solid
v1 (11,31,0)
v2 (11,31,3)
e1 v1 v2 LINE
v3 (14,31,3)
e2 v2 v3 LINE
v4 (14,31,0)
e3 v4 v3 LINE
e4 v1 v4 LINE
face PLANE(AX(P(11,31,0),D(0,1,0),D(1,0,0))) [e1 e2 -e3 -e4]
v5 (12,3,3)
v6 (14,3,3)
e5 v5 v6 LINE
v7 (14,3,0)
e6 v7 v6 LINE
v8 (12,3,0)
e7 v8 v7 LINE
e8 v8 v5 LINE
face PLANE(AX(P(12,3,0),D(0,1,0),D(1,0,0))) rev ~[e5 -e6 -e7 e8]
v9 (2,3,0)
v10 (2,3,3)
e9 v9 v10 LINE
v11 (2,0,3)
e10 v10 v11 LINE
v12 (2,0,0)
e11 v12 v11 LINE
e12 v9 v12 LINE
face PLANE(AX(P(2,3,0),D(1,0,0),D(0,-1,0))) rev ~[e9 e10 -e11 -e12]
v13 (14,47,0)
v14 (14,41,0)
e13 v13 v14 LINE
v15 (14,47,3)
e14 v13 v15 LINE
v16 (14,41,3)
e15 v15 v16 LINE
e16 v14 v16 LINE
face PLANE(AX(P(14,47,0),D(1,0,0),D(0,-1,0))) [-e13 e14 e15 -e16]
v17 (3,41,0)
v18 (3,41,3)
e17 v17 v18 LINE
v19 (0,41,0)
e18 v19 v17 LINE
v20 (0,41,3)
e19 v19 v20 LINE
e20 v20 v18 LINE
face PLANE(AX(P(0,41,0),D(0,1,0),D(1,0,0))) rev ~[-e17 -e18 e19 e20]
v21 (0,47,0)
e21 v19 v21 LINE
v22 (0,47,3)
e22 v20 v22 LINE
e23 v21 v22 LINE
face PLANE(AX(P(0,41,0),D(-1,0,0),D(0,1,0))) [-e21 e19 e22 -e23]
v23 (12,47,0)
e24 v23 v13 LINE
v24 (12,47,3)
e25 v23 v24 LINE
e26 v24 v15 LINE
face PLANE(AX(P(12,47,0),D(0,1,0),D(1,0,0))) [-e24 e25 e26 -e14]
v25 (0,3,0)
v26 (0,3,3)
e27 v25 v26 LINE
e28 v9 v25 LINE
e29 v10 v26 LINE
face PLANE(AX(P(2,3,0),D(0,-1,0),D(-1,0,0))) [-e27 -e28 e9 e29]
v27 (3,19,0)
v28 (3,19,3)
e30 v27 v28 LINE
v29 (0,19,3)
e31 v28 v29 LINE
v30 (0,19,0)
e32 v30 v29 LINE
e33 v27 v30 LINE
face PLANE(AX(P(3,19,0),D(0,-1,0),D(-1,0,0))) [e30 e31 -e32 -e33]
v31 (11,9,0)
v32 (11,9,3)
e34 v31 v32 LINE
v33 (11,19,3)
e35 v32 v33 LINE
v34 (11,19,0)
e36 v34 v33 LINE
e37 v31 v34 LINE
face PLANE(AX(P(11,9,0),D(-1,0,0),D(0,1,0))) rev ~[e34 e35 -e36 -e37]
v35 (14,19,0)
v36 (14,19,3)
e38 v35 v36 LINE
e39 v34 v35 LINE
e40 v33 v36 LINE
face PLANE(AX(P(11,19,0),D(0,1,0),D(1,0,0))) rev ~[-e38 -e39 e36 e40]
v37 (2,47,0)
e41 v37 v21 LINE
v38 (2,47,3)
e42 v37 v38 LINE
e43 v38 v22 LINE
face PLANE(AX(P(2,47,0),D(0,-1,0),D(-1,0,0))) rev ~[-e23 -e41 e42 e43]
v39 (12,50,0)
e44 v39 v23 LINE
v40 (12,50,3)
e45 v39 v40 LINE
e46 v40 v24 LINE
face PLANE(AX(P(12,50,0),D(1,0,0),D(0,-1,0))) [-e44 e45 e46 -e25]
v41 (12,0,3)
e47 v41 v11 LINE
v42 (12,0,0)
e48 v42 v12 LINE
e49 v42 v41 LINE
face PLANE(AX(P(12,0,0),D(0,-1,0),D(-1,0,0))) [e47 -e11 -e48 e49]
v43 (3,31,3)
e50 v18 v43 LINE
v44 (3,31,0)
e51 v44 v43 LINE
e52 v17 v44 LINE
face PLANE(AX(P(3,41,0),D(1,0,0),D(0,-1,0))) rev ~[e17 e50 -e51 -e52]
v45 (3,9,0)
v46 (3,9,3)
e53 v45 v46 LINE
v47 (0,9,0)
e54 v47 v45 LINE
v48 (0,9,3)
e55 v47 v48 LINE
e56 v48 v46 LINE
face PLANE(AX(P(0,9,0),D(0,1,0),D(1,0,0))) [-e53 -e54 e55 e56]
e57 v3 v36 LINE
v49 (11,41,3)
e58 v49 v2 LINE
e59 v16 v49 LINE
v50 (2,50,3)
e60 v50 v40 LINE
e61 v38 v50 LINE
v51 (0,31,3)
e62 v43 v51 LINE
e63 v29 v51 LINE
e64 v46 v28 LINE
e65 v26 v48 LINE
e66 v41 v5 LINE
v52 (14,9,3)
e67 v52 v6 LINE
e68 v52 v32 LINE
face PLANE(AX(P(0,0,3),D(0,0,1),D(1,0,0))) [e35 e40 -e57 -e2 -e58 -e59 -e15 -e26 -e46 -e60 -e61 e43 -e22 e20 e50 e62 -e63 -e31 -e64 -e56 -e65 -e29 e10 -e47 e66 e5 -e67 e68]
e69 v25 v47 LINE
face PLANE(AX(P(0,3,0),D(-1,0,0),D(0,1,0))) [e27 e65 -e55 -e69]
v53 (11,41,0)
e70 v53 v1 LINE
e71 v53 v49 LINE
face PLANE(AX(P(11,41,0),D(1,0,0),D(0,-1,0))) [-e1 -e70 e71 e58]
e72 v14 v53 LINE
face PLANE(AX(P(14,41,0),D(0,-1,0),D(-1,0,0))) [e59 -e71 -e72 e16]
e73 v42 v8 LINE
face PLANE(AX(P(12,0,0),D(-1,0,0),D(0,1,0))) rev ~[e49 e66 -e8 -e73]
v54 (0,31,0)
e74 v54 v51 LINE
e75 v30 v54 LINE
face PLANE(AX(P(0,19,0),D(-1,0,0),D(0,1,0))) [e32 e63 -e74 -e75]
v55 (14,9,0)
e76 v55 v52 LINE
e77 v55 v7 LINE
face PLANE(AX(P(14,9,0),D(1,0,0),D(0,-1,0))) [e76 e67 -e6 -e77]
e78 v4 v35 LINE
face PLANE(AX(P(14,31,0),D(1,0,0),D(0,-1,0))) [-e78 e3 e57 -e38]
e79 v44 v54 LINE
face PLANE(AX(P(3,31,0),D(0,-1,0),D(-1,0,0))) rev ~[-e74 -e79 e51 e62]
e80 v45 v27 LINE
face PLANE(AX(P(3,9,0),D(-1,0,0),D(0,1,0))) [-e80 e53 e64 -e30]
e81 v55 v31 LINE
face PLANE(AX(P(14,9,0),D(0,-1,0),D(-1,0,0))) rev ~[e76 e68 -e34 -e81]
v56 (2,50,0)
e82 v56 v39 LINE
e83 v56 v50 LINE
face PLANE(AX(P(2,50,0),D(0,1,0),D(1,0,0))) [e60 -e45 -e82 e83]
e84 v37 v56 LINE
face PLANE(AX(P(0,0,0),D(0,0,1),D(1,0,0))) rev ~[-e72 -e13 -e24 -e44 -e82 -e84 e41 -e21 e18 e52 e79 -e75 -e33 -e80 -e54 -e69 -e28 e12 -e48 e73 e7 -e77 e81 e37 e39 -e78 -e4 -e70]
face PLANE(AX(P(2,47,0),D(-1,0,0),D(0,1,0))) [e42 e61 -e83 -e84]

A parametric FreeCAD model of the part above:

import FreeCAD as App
import Part
import Sketcher
Q = App.Units.Quantity

doc = App.newDocument("Part")
params = doc.addObject("Spreadsheet::Sheet", "Params")
for row, (alias, value) in enumerate([
    ("sketch1_width", "10 mm"),
    ("sketch1_width2", "3 mm"),
    ("sketch1_height", "6 mm"),
    ("pad1_length", "3 mm"),
], start=1):
    params.set(f"A{row}", alias)
    params.set(f"B{row}", "=" + value)
    params.setAlias(f"B{row}", alias)

body = doc.addObject("PartDesign::Body", "Body")

# Sketch on XY plane
sketch1 = doc.addObject("Sketcher::SketchObject", "Sketch")
body.addObject(sketch1)
sketch1.AttachmentSupport = (doc.XY_Plane, [""])
sketch1.MapMode = "FlatFace"
sketch1.addGeometry(Part.LineSegment(App.Vector(12, 50, 0), App.Vector(2, 50, 0)), False)
sketch1.addGeometry(Part.LineSegment(App.Vector(2, 50, 0), App.Vector(2, 47, 0)), False)
sketch1.addGeometry(Part.LineSegment(App.Vector(2, 47, 0), App.Vector(0, 47, 0)), False)
sketch1.addGeometry(Part.LineSegment(App.Vector(0, 47, 0), App.Vector(0, 41, 0)), False)
sketch1.addGeometry(Part.LineSegment(App.Vector(0, 41, 0), App.Vector(3, 41, 0)), False)
sketch1.addGeometry(Part.LineSegment(App.Vector(3, 41, 0), App.Vector(3, 31, 0)), False)
sketch1.addGeometry(Part.LineSegment(App.Vector(3, 31, 0), App.Vector(0, 31, 0)), False)
sketch1.addGeometry(Part.LineSegment(App.Vector(0, 31, 0), App.Vector(0, 19, 0)), False)
sketch1.addGeometry(Part.LineSegment(App.Vector(0, 19, 0), App.Vector(3, 19, 0)), False)
sketch1.addGeometry(Part.LineSegment(App.Vector(3, 19, 0), App.Vector(3, 9, 0)), False)
sketch1.addGeometry(Part.LineSegment(App.Vector(3, 9, 0), App.Vector(0, 9, 0)), False)
sketch1.addGeometry(Part.LineSegment(App.Vector(0, 9, 0), App.Vector(0, 3, 0)), False)
sketch1.addGeometry(Part.LineSegment(App.Vector(0, 3, 0), App.Vector(2, 3, 0)), False)
sketch1.addGeometry(Part.LineSegment(App.Vector(2, 3, 0), App.Vector(2, 0, 0)), False)
sketch1.addGeometry(Part.LineSegment(App.Vector(2, 0, 0), App.Vector(12, 0, 0)), False)
sketch1.addGeometry(Part.LineSegment(App.Vector(12, 0, 0), App.Vector(12, 3, 0)), False)
sketch1.addGeometry(Part.LineSegment(App.Vector(12, 3, 0), App.Vector(14, 3, 0)), False)
sketch1.addGeometry(Part.LineSegment(App.Vector(14, 3, 0), App.Vector(14, 9, 0)), False)
sketch1.addGeometry(Part.LineSegment(App.Vector(14, 9, 0), App.Vector(11, 9, 0)), False)
sketch1.addGeometry(Part.LineSegment(App.Vector(11, 9, 0), App.Vector(11, 19, 0)), False)
sketch1.addGeometry(Part.LineSegment(App.Vector(11, 19, 0), App.Vector(14, 19, 0)), False)
sketch1.addGeometry(Part.LineSegment(App.Vector(14, 19, 0), App.Vector(14, 31, 0)), False)
sketch1.addGeometry(Part.LineSegment(App.Vector(14, 31, 0), App.Vector(11, 31, 0)), False)
sketch1.addGeometry(Part.LineSegment(App.Vector(11, 31, 0), App.Vector(11, 41, 0)), False)
sketch1.addGeometry(Part.LineSegment(App.Vector(11, 41, 0), App.Vector(14, 41, 0)), False)
sketch1.addGeometry(Part.LineSegment(App.Vector(14, 41, 0), App.Vector(14, 47, 0)), False)
sketch1.addGeometry(Part.LineSegment(App.Vector(14, 47, 0), App.Vector(12, 47, 0)), False)
sketch1.addGeometry(Part.LineSegment(App.Vector(12, 47, 0), App.Vector(12, 50, 0)), False)
sketch1.addConstraint(Sketcher.Constraint("Coincident", 0, 2, 1, 1))
sketch1.addConstraint(Sketcher.Constraint("Coincident", 1, 2, 2, 1))
sketch1.addConstraint(Sketcher.Constraint("Coincident", 2, 2, 3, 1))
sketch1.addConstraint(Sketcher.Constraint("Coincident", 3, 2, 4, 1))
sketch1.addConstraint(Sketcher.Constraint("Coincident", 4, 2, 5, 1))
sketch1.addConstraint(Sketcher.Constraint("Coincident", 5, 2, 6, 1))
sketch1.addConstraint(Sketcher.Constraint("Coincident", 6, 2, 7, 1))
sketch1.addConstraint(Sketcher.Constraint("Coincident", 7, 2, 8, 1))
sketch1.addConstraint(Sketcher.Constraint("Coincident", 8, 2, 9, 1))
sketch1.addConstraint(Sketcher.Constraint("Coincident", 9, 2, 10, 1))
sketch1.addConstraint(Sketcher.Constraint("Coincident", 10, 2, 11, 1))
sketch1.addConstraint(Sketcher.Constraint("Coincident", 11, 2, 12, 1))
sketch1.addConstraint(Sketcher.Constraint("Coincident", 12, 2, 13, 1))
sketch1.addConstraint(Sketcher.Constraint("Coincident", 13, 2, 14, 1))
sketch1.addConstraint(Sketcher.Constraint("Coincident", 14, 2, 15, 1))
sketch1.addConstraint(Sketcher.Constraint("Coincident", 15, 2, 16, 1))
sketch1.addConstraint(Sketcher.Constraint("Coincident", 16, 2, 17, 1))
sketch1.addConstraint(Sketcher.Constraint("Coincident", 17, 2, 18, 1))
sketch1.addConstraint(Sketcher.Constraint("Coincident", 18, 2, 19, 1))
sketch1.addConstraint(Sketcher.Constraint("Coincident", 19, 2, 20, 1))
sketch1.addConstraint(Sketcher.Constraint("Coincident", 20, 2, 21, 1))
sketch1.addConstraint(Sketcher.Constraint("Coincident", 21, 2, 22, 1))
sketch1.addConstraint(Sketcher.Constraint("Coincident", 22, 2, 23, 1))
sketch1.addConstraint(Sketcher.Constraint("Coincident", 23, 2, 24, 1))
sketch1.addConstraint(Sketcher.Constraint("Coincident", 24, 2, 25, 1))
sketch1.addConstraint(Sketcher.Constraint("Coincident", 25, 2, 26, 1))
sketch1.addConstraint(Sketcher.Constraint("Coincident", 26, 2, 27, 1))
sketch1.addConstraint(Sketcher.Constraint("Coincident", 27, 2, 0, 1))
sketch1.addConstraint(Sketcher.Constraint("Horizontal", 0))
sketch1.addConstraint(Sketcher.Constraint("Vertical", 1))
sketch1.addConstraint(Sketcher.Constraint("Horizontal", 2))
sketch1.addConstraint(Sketcher.Constraint("Vertical", 3))
sketch1.addConstraint(Sketcher.Constraint("Horizontal", 4))
sketch1.addConstraint(Sketcher.Constraint("Vertical", 5))
sketch1.addConstraint(Sketcher.Constraint("Horizontal", 6))
sketch1.addConstraint(Sketcher.Constraint("Vertical", 7))
sketch1.addConstraint(Sketcher.Constraint("Horizontal", 8))
sketch1.addConstraint(Sketcher.Constraint("Vertical", 9))
sketch1.addConstraint(Sketcher.Constraint("Horizontal", 10))
sketch1.addConstraint(Sketcher.Constraint("Vertical", 11))
sketch1.addConstraint(Sketcher.Constraint("Horizontal", 12))
sketch1.addConstraint(Sketcher.Constraint("Vertical", 13))
sketch1.addConstraint(Sketcher.Constraint("Horizontal", 14))
sketch1.addConstraint(Sketcher.Constraint("Vertical", 15))
sketch1.addConstraint(Sketcher.Constraint("Horizontal", 16))
sketch1.addConstraint(Sketcher.Constraint("Vertical", 17))
sketch1.addConstraint(Sketcher.Constraint("Horizontal", 18))
sketch1.addConstraint(Sketcher.Constraint("Vertical", 19))
sketch1.addConstraint(Sketcher.Constraint("Horizontal", 20))
sketch1.addConstraint(Sketcher.Constraint("Vertical", 21))
sketch1.addConstraint(Sketcher.Constraint("Horizontal", 22))
sketch1.addConstraint(Sketcher.Constraint("Vertical", 23))
sketch1.addConstraint(Sketcher.Constraint("Horizontal", 24))
sketch1.addConstraint(Sketcher.Constraint("Vertical", 25))
sketch1.addConstraint(Sketcher.Constraint("Horizontal", 26))
sketch1.addConstraint(Sketcher.Constraint("Vertical", 27))
sketch1.addConstraint(Sketcher.Constraint("PointOnObject", 2, 2, -2))
sketch1.addConstraint(Sketcher.Constraint("PointOnObject", 6, 2, -2))
sketch1.addConstraint(Sketcher.Constraint("PointOnObject", 10, 2, -2))
sketch1.addConstraint(Sketcher.Constraint("PointOnObject", 13, 2, -1))
sketch1.addConstraint(Sketcher.Constraint("Horizontal", 12, 2, 15, 2))
sketch1.addConstraint(Sketcher.Constraint("Horizontal", 10, 2, 17, 2))
sketch1.addConstraint(Sketcher.Constraint("Horizontal", 8, 2, 19, 2))
sketch1.addConstraint(Sketcher.Constraint("Horizontal", 6, 2, 21, 2))
sketch1.addConstraint(Sketcher.Constraint("Horizontal", 4, 2, 23, 2))
sketch1.addConstraint(Sketcher.Constraint("Horizontal", 2, 2, 25, 2))
sketch1.addConstraint(Sketcher.Constraint("Vertical", 5, 2, 8, 2))
sketch1.addConstraint(Sketcher.Constraint("Vertical", 1, 2, 12, 2))
sketch1.addConstraint(Sketcher.Constraint("Vertical", 17, 2, 20, 2))
sketch1.addConstraint(Sketcher.Constraint("Vertical", 19, 2, 22, 2))
sketch1.addConstraint(Sketcher.Constraint("Vertical", 21, 2, 24, 2))
sketch1.addConstraint(Sketcher.Constraint("Vertical", 15, 2, 26, 2))
sketch1.addConstraint(Sketcher.Constraint("Equal", 12, 16))
sketch1.addConstraint(Sketcher.Constraint("Equal", 10, 18))
sketch1.addConstraint(Sketcher.Constraint("Equal", 24, 1))
sketch1.addConstraint(Sketcher.Constraint("Equal", 14, 5))
sketch1.addConstraint(Sketcher.Constraint("Equal", 5, 9))
sketch1.addConstraint(Sketcher.Constraint("Equal", 3, 11))
sketch1.addConstraint(Sketcher.Constraint("Equal", 1, 13))
sketch1.addConstraint(Sketcher.Constraint("DistanceX", 0, 2, 0, 1, Q("10 mm")))
sketch1.addConstraint(Sketcher.Constraint("DistanceX", 4, 1, 4, 2, Q("3 mm")))
sketch1.addConstraint(Sketcher.Constraint("DistanceY", -1, 1, 0, 2, Q("50 mm")))
sketch1.addConstraint(Sketcher.Constraint("DistanceX", -1, 1, 16, 2, Q("14 mm")))
sketch1.addConstraint(Sketcher.Constraint("DistanceY", 3, 2, 3, 1, Q("6 mm")))
sketch1.setExpression("Constraints[79]", "Params.sketch1_width")
sketch1.setExpression("Constraints[80]", "Params.sketch1_width2")
sketch1.setExpression("Constraints[83]", "Params.sketch1_height")
pad1 = doc.addObject("PartDesign::Pad", "Pad")
body.addObject(pad1)
pad1.Profile = sketch1
pad1.setExpression("Length", "Params.pad1_length")

doc.recompute()
